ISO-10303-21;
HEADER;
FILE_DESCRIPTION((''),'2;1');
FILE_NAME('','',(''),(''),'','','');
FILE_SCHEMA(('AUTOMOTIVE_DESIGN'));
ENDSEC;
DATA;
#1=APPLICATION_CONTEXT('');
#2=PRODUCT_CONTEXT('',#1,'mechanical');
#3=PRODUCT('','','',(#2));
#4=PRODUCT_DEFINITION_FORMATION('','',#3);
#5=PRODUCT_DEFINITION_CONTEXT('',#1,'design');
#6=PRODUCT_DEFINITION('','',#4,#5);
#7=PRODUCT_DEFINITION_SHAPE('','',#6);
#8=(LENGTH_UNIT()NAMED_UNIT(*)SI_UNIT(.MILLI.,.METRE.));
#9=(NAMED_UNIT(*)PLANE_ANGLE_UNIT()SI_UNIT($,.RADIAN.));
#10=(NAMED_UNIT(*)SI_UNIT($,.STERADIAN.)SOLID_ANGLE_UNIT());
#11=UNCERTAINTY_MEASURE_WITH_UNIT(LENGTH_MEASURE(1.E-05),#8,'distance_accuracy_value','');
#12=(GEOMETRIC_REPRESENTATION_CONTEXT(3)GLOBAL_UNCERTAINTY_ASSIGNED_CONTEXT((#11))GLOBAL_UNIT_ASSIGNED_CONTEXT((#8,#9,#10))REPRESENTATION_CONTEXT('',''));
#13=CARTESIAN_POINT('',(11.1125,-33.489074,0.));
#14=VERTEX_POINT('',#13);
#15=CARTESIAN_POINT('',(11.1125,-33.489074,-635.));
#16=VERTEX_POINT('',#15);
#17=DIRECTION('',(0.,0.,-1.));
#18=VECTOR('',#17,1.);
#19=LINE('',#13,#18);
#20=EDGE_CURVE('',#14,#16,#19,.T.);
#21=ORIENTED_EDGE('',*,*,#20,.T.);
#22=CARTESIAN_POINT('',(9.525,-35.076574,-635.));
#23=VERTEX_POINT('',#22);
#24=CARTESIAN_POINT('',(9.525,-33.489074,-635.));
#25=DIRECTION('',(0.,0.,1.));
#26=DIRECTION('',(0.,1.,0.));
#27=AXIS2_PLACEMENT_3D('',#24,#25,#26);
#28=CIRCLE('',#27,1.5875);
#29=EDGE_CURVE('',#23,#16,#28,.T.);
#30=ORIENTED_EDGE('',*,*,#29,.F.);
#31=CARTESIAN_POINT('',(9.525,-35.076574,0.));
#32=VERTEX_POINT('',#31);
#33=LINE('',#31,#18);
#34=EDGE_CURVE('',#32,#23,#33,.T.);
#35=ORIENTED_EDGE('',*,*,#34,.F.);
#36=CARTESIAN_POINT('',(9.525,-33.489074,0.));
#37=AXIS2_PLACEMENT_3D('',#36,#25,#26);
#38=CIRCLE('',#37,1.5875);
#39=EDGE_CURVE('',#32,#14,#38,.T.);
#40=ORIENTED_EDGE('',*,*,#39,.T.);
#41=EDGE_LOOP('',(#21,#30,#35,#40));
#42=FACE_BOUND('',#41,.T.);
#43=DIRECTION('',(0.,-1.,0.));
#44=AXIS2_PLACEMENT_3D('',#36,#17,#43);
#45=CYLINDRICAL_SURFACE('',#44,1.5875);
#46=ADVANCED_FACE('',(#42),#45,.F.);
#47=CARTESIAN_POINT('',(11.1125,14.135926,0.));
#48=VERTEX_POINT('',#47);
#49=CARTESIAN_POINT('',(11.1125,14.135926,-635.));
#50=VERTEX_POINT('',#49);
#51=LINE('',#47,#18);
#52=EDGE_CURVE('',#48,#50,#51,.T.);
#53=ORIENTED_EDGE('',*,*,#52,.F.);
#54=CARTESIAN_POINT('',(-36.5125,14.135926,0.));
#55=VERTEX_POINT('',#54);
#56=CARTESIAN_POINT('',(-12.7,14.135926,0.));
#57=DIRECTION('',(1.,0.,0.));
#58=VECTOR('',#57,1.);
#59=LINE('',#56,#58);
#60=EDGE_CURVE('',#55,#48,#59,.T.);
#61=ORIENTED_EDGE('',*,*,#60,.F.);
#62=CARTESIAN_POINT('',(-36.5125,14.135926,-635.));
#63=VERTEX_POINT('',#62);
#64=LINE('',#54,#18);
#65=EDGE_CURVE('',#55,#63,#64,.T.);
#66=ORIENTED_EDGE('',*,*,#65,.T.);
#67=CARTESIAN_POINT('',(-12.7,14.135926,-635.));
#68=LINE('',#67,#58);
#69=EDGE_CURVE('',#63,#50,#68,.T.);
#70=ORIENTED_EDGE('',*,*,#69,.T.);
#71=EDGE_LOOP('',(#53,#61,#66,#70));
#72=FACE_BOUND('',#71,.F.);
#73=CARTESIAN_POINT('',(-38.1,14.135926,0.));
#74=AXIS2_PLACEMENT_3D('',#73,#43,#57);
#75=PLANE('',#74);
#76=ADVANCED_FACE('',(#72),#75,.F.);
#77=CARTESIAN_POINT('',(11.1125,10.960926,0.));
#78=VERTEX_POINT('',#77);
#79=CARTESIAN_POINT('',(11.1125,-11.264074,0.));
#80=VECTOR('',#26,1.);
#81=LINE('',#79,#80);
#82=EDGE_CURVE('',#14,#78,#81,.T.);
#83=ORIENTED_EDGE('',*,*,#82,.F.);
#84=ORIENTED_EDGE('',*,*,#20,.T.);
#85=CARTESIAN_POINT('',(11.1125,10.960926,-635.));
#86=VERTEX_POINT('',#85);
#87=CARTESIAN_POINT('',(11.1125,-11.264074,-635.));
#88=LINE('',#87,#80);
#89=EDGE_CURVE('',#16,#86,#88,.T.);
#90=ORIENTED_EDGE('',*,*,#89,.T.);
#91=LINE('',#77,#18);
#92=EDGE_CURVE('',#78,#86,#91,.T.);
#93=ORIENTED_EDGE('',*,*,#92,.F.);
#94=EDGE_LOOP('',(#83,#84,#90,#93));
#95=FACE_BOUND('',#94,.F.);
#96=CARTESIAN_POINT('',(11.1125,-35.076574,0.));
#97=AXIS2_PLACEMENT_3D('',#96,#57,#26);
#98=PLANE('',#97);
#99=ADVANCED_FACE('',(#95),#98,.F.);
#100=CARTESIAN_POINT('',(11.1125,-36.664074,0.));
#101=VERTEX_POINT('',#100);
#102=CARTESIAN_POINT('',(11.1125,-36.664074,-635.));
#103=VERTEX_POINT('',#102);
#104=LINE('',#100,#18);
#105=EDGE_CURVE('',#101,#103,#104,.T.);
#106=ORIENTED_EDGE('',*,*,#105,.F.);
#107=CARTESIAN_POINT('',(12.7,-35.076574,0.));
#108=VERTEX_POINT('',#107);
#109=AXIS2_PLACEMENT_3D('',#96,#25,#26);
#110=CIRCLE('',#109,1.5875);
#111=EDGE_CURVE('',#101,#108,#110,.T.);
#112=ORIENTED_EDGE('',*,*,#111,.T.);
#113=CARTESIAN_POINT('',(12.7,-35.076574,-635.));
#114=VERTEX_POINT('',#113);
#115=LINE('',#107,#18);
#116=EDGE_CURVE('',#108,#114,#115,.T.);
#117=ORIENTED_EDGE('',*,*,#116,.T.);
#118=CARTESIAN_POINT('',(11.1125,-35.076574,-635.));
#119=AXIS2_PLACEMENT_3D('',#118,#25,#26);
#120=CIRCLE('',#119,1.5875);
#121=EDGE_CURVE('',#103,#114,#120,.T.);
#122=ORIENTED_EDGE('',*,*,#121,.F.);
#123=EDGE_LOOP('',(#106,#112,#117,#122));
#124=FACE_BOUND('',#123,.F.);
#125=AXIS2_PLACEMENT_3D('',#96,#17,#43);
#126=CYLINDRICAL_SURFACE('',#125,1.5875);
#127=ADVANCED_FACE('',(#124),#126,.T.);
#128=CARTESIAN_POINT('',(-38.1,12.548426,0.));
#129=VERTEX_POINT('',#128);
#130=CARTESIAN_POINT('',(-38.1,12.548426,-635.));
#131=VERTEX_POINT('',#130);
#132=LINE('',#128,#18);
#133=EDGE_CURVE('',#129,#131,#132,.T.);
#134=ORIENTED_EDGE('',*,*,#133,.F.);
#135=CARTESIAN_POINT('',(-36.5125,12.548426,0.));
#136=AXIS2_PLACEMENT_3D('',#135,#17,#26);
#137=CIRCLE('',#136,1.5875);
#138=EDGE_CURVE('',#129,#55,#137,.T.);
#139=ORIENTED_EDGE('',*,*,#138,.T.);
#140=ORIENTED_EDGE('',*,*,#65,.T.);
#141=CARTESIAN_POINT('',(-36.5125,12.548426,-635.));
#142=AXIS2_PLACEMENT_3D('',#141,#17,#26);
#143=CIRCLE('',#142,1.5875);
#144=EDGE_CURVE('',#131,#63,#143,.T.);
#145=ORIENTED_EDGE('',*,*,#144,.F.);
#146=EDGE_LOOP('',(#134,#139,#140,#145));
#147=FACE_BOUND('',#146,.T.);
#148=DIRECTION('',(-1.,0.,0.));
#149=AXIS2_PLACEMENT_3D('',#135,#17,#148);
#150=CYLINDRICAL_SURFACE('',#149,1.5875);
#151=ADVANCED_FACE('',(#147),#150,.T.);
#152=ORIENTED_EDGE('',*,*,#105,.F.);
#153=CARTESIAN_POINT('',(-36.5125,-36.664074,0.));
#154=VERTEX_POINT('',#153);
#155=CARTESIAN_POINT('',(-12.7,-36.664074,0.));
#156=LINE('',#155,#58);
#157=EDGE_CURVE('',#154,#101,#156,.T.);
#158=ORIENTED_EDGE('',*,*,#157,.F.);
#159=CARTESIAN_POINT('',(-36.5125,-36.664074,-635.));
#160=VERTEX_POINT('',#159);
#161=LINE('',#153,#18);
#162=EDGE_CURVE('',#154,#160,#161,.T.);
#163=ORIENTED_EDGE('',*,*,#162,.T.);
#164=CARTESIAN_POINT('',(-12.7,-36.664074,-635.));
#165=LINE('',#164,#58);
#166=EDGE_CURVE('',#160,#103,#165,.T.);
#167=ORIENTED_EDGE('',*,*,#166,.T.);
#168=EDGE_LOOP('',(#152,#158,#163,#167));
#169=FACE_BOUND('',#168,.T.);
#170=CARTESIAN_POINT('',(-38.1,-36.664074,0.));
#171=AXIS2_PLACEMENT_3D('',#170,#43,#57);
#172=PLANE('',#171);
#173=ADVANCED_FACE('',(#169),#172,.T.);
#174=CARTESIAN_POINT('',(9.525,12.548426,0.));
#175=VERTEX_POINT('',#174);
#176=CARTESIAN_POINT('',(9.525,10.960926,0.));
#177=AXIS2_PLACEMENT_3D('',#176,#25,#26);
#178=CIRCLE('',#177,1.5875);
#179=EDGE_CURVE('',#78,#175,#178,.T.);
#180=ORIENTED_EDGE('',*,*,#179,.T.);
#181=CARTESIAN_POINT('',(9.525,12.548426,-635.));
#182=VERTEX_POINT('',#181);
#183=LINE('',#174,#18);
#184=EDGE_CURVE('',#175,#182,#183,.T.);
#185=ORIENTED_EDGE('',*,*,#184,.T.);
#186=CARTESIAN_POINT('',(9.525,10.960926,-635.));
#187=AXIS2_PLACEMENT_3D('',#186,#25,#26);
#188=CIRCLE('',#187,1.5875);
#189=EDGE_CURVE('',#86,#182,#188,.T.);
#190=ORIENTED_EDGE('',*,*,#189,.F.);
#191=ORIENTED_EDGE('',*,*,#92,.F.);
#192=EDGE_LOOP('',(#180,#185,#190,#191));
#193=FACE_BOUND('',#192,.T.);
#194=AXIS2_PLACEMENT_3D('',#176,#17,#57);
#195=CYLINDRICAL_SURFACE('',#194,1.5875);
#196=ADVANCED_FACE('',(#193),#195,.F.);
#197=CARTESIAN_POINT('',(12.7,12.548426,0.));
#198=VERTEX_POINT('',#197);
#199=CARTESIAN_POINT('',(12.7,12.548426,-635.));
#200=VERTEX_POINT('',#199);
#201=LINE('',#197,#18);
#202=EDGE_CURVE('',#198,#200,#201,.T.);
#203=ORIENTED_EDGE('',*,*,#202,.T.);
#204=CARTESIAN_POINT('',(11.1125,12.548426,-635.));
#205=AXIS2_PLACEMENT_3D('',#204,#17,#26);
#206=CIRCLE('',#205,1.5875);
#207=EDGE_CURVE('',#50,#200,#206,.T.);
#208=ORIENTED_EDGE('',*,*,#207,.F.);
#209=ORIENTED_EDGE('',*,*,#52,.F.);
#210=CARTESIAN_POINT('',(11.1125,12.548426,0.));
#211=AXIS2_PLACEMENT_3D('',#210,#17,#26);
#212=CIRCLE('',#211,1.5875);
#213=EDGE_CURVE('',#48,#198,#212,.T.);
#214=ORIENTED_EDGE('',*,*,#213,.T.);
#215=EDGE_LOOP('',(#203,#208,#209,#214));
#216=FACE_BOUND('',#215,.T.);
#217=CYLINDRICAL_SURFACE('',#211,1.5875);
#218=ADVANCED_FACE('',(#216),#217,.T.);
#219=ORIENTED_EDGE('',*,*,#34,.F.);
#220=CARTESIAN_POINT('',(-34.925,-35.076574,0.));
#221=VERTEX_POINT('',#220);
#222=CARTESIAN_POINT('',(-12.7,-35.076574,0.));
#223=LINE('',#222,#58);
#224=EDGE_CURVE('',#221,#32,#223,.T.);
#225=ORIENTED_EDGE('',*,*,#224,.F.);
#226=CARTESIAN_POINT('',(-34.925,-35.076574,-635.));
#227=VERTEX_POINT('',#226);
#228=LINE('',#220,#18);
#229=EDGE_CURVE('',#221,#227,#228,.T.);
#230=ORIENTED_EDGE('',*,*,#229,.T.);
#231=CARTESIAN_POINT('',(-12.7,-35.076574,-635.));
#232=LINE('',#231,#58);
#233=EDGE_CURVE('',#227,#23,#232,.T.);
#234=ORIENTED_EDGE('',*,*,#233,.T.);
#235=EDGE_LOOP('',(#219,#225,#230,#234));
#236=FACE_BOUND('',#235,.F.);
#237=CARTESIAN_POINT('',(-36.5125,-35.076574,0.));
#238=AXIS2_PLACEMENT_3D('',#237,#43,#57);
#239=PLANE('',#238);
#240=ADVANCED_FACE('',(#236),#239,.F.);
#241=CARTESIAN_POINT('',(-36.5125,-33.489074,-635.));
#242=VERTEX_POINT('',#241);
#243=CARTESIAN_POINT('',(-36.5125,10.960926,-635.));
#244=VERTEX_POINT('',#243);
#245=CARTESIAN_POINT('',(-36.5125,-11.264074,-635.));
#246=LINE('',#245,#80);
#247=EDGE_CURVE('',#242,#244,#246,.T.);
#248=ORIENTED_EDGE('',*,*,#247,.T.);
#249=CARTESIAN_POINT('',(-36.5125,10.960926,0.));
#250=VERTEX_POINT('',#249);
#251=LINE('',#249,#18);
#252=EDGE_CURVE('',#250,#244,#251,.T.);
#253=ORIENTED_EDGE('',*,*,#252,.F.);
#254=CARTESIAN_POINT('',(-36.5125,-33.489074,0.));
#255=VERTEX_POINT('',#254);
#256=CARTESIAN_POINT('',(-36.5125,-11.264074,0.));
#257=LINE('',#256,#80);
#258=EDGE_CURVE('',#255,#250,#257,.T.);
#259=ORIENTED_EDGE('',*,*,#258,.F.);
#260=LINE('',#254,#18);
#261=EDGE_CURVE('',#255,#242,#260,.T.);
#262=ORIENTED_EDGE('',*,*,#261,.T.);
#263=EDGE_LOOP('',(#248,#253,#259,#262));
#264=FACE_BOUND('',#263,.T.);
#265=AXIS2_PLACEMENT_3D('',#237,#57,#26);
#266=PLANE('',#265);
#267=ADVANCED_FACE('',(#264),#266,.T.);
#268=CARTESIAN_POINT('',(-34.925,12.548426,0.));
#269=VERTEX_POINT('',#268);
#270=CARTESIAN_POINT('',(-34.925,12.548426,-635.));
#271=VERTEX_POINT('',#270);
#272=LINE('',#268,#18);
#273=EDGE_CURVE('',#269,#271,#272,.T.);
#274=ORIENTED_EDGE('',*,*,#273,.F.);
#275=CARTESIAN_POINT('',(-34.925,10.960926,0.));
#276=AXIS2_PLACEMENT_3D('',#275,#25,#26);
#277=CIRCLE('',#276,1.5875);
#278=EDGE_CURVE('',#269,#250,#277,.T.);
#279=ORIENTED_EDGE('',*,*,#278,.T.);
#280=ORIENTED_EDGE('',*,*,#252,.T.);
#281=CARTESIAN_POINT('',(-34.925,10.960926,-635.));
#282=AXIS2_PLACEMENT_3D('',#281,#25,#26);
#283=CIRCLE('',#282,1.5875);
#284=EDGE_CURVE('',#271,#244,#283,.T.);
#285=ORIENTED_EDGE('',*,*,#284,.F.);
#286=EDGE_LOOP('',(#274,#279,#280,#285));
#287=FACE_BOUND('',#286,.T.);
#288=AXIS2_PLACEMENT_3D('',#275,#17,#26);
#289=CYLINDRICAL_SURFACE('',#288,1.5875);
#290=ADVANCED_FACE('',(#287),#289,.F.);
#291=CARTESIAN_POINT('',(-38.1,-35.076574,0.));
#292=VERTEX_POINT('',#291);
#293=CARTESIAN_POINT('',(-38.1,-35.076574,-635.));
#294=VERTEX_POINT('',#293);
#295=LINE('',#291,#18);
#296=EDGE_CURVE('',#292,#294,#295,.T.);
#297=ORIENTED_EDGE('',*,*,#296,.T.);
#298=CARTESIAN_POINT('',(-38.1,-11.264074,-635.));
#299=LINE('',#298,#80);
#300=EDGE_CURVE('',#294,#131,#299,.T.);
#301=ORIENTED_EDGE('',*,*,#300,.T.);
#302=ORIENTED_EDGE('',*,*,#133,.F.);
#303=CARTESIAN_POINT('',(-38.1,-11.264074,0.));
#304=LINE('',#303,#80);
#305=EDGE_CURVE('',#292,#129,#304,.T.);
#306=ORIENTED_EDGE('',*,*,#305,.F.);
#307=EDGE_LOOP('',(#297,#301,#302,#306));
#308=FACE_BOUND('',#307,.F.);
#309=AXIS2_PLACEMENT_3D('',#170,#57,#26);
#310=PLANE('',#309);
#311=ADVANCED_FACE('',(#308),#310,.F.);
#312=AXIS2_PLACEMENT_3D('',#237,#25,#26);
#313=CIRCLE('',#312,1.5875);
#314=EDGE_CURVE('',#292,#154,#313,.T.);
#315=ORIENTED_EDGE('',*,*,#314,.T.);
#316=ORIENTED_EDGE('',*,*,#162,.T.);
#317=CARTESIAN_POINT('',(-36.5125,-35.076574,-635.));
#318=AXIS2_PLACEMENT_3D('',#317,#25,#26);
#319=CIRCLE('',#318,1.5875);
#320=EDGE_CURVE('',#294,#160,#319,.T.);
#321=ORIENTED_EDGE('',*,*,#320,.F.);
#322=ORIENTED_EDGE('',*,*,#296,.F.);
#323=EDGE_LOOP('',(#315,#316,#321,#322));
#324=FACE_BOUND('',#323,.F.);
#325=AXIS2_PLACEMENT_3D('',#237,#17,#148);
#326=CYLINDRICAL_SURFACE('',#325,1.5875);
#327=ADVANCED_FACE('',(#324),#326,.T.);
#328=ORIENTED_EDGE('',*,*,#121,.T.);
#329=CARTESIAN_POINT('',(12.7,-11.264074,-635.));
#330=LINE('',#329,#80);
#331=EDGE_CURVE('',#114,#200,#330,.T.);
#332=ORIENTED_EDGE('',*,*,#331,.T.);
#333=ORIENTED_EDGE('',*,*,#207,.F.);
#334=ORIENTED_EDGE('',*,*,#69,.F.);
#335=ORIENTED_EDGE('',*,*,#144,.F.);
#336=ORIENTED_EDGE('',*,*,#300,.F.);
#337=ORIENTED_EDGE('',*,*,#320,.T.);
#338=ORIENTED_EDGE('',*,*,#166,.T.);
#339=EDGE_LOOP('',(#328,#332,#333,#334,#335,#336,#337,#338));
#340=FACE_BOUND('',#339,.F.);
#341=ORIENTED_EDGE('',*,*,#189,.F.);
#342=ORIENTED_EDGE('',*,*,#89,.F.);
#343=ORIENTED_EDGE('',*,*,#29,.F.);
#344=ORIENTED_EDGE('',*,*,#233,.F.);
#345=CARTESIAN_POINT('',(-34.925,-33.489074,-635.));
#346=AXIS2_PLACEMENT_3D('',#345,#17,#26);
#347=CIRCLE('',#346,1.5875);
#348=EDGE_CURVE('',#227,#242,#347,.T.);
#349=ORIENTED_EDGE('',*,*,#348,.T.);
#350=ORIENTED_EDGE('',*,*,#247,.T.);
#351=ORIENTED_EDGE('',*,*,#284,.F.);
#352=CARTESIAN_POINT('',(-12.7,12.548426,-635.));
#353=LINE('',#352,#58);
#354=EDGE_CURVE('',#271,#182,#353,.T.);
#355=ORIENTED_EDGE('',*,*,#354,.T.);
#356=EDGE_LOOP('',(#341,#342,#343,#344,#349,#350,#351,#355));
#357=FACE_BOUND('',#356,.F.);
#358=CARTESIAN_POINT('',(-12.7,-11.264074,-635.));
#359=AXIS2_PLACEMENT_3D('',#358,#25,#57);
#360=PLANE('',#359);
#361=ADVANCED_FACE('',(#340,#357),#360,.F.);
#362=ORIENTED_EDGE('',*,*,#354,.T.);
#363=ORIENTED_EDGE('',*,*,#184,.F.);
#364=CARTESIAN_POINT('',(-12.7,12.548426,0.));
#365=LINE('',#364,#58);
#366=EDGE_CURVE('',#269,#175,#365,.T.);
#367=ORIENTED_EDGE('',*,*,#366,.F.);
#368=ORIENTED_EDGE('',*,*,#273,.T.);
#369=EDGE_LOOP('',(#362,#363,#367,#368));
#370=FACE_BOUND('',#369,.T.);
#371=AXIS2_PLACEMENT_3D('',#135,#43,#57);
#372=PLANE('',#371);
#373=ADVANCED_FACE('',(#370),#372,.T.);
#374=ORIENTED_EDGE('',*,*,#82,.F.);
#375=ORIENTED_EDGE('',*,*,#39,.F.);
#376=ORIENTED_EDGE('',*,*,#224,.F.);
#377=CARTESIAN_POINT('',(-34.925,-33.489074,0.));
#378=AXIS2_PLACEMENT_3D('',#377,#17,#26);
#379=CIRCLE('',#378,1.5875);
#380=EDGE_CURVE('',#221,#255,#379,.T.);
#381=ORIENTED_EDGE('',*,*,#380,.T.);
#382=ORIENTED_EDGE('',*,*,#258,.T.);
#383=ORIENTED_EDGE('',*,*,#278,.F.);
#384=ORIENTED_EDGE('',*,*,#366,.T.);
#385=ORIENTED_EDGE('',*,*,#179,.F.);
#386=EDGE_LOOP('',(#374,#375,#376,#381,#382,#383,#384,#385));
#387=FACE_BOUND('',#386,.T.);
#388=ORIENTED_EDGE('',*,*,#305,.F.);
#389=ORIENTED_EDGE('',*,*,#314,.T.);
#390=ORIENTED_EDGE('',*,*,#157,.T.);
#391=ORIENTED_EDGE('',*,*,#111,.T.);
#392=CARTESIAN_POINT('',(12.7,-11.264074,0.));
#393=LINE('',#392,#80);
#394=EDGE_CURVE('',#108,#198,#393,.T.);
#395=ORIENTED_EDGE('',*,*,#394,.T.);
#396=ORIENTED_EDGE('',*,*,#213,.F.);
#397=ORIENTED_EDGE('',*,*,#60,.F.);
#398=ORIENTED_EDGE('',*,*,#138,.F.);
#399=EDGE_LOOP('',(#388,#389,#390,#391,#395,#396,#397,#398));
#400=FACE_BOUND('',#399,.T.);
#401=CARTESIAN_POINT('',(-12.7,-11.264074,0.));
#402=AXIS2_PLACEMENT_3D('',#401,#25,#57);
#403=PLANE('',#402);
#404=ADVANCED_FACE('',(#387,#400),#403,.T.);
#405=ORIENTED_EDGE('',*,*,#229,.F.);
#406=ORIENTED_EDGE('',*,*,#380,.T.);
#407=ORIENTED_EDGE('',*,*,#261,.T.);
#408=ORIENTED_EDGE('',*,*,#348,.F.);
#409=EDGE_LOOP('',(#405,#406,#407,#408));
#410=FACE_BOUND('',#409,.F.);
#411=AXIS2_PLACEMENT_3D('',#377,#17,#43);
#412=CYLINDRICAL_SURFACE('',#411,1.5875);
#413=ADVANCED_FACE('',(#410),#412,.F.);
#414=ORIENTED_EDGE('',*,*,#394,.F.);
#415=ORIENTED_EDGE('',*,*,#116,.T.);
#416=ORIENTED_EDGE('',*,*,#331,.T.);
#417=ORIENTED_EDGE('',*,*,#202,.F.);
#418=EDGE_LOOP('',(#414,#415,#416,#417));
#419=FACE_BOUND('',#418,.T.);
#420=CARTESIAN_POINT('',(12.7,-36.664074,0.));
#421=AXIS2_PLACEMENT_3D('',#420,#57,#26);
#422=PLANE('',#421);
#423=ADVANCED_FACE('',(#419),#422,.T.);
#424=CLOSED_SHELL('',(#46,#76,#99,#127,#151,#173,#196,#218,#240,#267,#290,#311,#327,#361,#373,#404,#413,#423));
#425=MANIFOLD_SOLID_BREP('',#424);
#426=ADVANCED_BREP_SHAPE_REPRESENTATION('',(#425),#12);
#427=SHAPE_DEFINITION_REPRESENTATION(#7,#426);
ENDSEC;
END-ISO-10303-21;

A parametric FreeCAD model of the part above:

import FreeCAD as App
import Part
import Sketcher

V = App.Vector
Q = App.Units.Quantity


def edges_at(feature, points):
    """Names of the edges that pass closest to the given points."""
    edges = feature.Shape.Edges
    near = lambda p: min(range(len(edges)), key=lambda i: edges[i].distToShape(Part.Vertex(*p))[0])
    return sorted({f"Edge{near(p) + 1}" for p in points})

doc = App.newDocument("Part")
body = doc.addObject("PartDesign::Body", "Body")

# Sketch on XY plane
sketch1 = doc.addObject("Sketcher::SketchObject", "Sketch")
body.addObject(sketch1)
sketch1.AttachmentSupport = (doc.XY_Plane, [""])
sketch1.MapMode = "FlatFace"
sketch1.addGeometry([
    Part.LineSegment(V(-38, 14, 0), V(-38, -37, 0)),  # 0
    Part.LineSegment(V(-38, -37, 0), V(13, -37, 0)),  # 1
    Part.LineSegment(V(13, -37, 0), V(13, 14, 0)),  # 2
    Part.LineSegment(V(13, 14, 0), V(-38, 14, 0)),  # 3
    Part.LineSegment(V(11, -35, 0), V(-37, -35, 0)),  # 4
    Part.LineSegment(V(-37, -35, 0), V(-37, 13, 0)),  # 5
    Part.LineSegment(V(-37, 13, 0), V(11, 13, 0)),  # 6
    Part.LineSegment(V(11, 13, 0), V(11, -35, 0)),  # 7
], False)
sketch1.addConstraint([
    Sketcher.Constraint("Coincident", 0, 2, 1, 1),
    Sketcher.Constraint("Coincident", 1, 2, 2, 1),
    Sketcher.Constraint("Coincident", 2, 2, 3, 1),
    Sketcher.Constraint("Coincident", 3, 2, 0, 1),
    Sketcher.Constraint("Coincident", 4, 2, 5, 1),
    Sketcher.Constraint("Coincident", 5, 2, 6, 1),
    Sketcher.Constraint("Coincident", 6, 2, 7, 1),
    Sketcher.Constraint("Coincident", 7, 2, 4, 1),
    Sketcher.Constraint("Vertical", 0),
    Sketcher.Constraint("Horizontal", 1),
    Sketcher.Constraint("Vertical", 2),
    Sketcher.Constraint("Horizontal", 3),
    Sketcher.Constraint("Horizontal", 4),
    Sketcher.Constraint("Vertical", 5),
    Sketcher.Constraint("Horizontal", 6),
    Sketcher.Constraint("Vertical", 7),
    Sketcher.Constraint("Equal", 3, 0),
    Sketcher.Constraint("Equal", 6, 5),
    Sketcher.Constraint("DistanceX", 1, 1, 1, 2, Q("2 in")),
    Sketcher.Constraint("DistanceX", 0, 2, -1, 1, Q("1.5 in")),
    Sketcher.Constraint("DistanceX", 4, 2, 4, 1, Q("1.875 in")),
    Sketcher.Constraint("DistanceX", 4, 2, -1, 1, Q("1.4375 in")),
    Sketcher.Constraint("DistanceY", 0, 2, 4, 2, Q("0.0625 in")),
    Sketcher.Constraint("DistanceY", 0, 2, -1, 1, Q("36.664074 mm")),
])
pad1 = doc.addObject("PartDesign::Pad", "Pad")
body.addObject(pad1)
pad1.Profile = sketch1
pad1.Length = Q("25 in")
pad1.Reversed = True
doc.recompute()

fillet = doc.addObject("PartDesign::Fillet", "Fillet")
body.addObject(fillet)
fillet.Base = (pad1, edges_at(pad1, [
    (-38.1, -36.664, -317.5),
    (12.7, -36.664, -317.5),
    (12.7, 14.136, -317.5),
    (-38.1, 14.136, -317.5),
]))
fillet.Radius = Q("0.0625 in")
doc.recompute()

fillet2 = doc.addObject("PartDesign::Fillet", "Fillet001")
body.addObject(fillet2)
fillet2.Base = (fillet, edges_at(fillet, [
    (-36.513, 12.548, -317.5),
    (11.113, 12.548, -317.5),
    (11.113, -35.077, -317.5),
    (-36.513, -35.077, -317.5),
]))
fillet2.Radius = Q("0.0625 in")

doc.recompute()
